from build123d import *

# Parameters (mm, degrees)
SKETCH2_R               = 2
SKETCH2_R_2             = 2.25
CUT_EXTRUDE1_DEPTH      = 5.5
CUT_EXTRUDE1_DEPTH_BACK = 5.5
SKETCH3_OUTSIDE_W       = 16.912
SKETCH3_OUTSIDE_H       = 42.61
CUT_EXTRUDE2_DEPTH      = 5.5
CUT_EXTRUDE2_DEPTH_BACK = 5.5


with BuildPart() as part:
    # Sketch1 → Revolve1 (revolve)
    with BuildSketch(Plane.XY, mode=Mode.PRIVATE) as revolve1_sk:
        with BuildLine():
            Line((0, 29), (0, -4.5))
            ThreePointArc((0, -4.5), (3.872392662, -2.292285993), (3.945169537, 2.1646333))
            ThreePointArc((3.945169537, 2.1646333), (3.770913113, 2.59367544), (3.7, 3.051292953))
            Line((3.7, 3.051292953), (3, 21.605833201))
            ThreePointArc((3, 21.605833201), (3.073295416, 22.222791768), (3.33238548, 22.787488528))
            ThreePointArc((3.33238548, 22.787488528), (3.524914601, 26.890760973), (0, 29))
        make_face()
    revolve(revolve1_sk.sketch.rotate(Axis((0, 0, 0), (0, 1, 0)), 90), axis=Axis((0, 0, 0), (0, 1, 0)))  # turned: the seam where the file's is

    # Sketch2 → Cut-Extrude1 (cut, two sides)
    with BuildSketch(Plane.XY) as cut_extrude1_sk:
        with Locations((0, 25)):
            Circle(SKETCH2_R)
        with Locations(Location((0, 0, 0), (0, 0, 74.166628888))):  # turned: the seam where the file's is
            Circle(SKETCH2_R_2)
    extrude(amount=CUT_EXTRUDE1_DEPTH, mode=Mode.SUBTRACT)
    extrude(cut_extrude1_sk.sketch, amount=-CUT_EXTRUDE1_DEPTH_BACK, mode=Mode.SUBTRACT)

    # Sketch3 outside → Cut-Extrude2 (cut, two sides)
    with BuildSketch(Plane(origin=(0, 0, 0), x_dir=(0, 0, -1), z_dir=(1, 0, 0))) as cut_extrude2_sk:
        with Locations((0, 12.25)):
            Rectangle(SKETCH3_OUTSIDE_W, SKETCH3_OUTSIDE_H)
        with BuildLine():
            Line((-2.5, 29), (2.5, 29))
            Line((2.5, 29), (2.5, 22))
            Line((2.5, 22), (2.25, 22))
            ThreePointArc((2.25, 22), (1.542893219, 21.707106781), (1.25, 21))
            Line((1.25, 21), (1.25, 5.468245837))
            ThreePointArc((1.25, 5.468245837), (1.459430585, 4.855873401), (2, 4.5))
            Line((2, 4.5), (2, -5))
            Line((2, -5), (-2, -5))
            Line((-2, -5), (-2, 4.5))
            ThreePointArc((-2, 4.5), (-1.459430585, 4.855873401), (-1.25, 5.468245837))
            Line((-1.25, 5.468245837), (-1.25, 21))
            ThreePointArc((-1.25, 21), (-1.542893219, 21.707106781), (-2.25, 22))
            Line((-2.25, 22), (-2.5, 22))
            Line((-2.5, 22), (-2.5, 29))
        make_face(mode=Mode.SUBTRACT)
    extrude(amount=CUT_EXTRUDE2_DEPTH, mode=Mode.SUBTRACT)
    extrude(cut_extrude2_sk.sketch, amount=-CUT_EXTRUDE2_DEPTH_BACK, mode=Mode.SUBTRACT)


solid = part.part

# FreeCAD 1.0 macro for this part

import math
import FreeCAD as App
import Part
import Sketcher

V = App.Vector
Q = App.Units.Quantity


def add_polygon(sketch, points):
    """Adds a closed chain of lines whose ends are joined by coincident constraints."""
    first, n = sketch.GeometryCount, len(points)
    for a, b in zip(points, points[1:] + points[:1]):
        sketch.addGeometry(Part.LineSegment(App.Vector(*a, 0), App.Vector(*b, 0)), False)
    for i in range(n):
        sketch.addConstraint(Sketcher.Constraint("Coincident", first + i, 2, first + (i + 1) % n, 1))

doc = App.newDocument("Part")
body = doc.addObject("PartDesign::Body", "Body")

# Sketch on XY plane
sketch1 = body.newObject("Sketcher::SketchObject", "Sketch")
sketch1.AttachmentSupport = (doc.getObject("XY_Plane"), [""])
sketch1.MapMode = "FlatFace"
sketch1.addGeometry(Part.LineSegment(V(0, 29, 0), V(0, -4.5, 0)), False)
sketch1.addGeometry(Part.ArcOfCircle(Part.Circle(V(0, 0, 0), V(0, 0, 1), 4.5), math.radians(-90), math.radians(29)), False)
sketch1.addGeometry(Part.ArcOfCircle(Part.Circle(V(5.7, 3.1, 0), V(0, 0, 1), 2), math.radians(-178), math.radians(-151)), False)
sketch1.addGeometry(Part.LineSegment(V(3.7, 3.1, 0), V(3, 21.6, 0)), False)
sketch1.addGeometry(Part.ArcOfCircle(Part.Circle(V(5, 21.7, 0), V(0, 0, 1), 2), math.radians(146), math.radians(182)), False)
sketch1.addGeometry(Part.ArcOfCircle(Part.Circle(V(0, 25, 0), V(0, 0, 1), 4), math.radians(-34), math.radians(90)), False)
sketch1.addConstraint(Sketcher.Constraint("Coincident", 0, 2, 1, 1))
sketch1.addConstraint(Sketcher.Constraint("Tangent", 1, 2, 2, 2))
sketch1.addConstraint(Sketcher.Constraint("Tangent", 2, 1, 3, 1))
sketch1.addConstraint(Sketcher.Constraint("Tangent", 3, 2, 4, 2))
sketch1.addConstraint(Sketcher.Constraint("Tangent", 4, 1, 5, 1))
sketch1.addConstraint(Sketcher.Constraint("Coincident", 5, 2, 0, 1))
sketch1.addConstraint(Sketcher.Constraint("Vertical", 0))
sketch1.addConstraint(Sketcher.Constraint("Coincident", 1, 3, -1, 1))
sketch1.addConstraint(Sketcher.Constraint("Equal", 2, 4))
sketch1.addConstraint(Sketcher.Constraint("PointOnObject", 5, 3, -2))
sketch1.addConstraint(Sketcher.Constraint("PointOnObject", 0, 2, -2))
sketch1.addConstraint(Sketcher.Constraint("Radius", 2, Q("2 mm")))
sketch1.addConstraint(Sketcher.Constraint("Radius", 5, Q("4 mm")))
sketch1.addConstraint(Sketcher.Constraint("Radius", 1, Q("4.5 mm")))
sketch1.addConstraint(Sketcher.Constraint("DistanceY", 0, 2, 0, 1, Q("33.5 mm")))
sketch1.addConstraint(Sketcher.Constraint("DistanceX", -1, 1, 3, 2, Q("3 mm")))
sketch1.addConstraint(Sketcher.Constraint("DistanceX", -1, 1, 2, 1, Q("3.7 mm")))
revolution = body.newObject("PartDesign::Revolution", "Revolution")
revolution.Profile = sketch1
revolution.ReferenceAxis = (sketch1, ["V_Axis"])
revolution.Angle = 360

# Sketch on XY plane
sketch2 = body.newObject("Sketcher::SketchObject", "Sketch001")
sketch2.AttachmentSupport = (doc.getObject("XY_Plane"), [""])
sketch2.MapMode = "FlatFace"
sketch2.addGeometry(Part.Circle(V(0, 25, 0), V(0, 0, 1), 2), False)
sketch2.addGeometry(Part.Circle(V(0, 0, 0), V(0, 0, 1), 2.2), False)
sketch2.addConstraint(Sketcher.Constraint("Coincident", 1, 3, -1, 1))
sketch2.addConstraint(Sketcher.Constraint("PointOnObject", 0, 3, -2))
sketch2.addConstraint(Sketcher.Constraint("Diameter", 0, Q("4 mm")))
sketch2.addConstraint(Sketcher.Constraint("Diameter", 1, Q("4.5 mm")))
sketch2.addConstraint(Sketcher.Constraint("DistanceY", -1, 1, 0, 3, Q("25 mm")))
pocket1 = body.newObject("PartDesign::Pocket", "Pocket")
pocket1.Profile = sketch2
pocket1.Type = "ThroughAll"
pocket1.Midplane = True

# Sketch on YZ plane
sketch3 = body.newObject("Sketcher::SketchObject", "Sketch002")
sketch3.AttachmentSupport = (doc.getObject("YZ_Plane"), [""])
sketch3.MapMode = "FlatFace"
add_polygon(sketch3, [(33.55, 8.46), (-9.05, 8.46), (-9.05, -8.46), (33.55, -8.46)])  # lines 0-3
sketch3.addGeometry(Part.LineSegment(V(22, 2.5, 0), V(29, 2.5, 0)), False)  # 4
sketch3.addGeometry(Part.LineSegment(V(29, 2.5, 0), V(29, -2.5, 0)), False)  # 5
sketch3.addGeometry(Part.LineSegment(V(29, -2.5, 0), V(22, -2.5, 0)), False)  # 6
sketch3.addGeometry(Part.LineSegment(V(22, -2.5, 0), V(22, -2.25, 0)), False)  # 7
sketch3.addGeometry(Part.ArcOfCircle(Part.Circle(V(21, -2.25, 0), V(0, 0, 1), 1), math.radians(0), math.radians(90)), False)  # 8
sketch3.addGeometry(Part.LineSegment(V(21, -1.25, 0), V(5.47, -1.25, 0)), False)  # 9
sketch3.addGeometry(Part.ArcOfCircle(Part.Circle(V(5.47, -2.25, 0), V(0, 0, 1), 1), math.radians(90), math.radians(166)), False)  # 10
sketch3.addGeometry(Part.LineSegment(V(4.5, -2, 0), V(-5, -2, 0)), False)  # 11
sketch3.addGeometry(Part.LineSegment(V(-5, -2, 0), V(-5, 2, 0)), False)  # 12
sketch3.addGeometry(Part.LineSegment(V(-5, 2, 0), V(4.5, 2, 0)), False)  # 13
sketch3.addGeometry(Part.ArcOfCircle(Part.Circle(V(5.47, 2.25, 0), V(0, 0, 1), 1), math.radians(-166), math.radians(-90)), False)  # 14
sketch3.addGeometry(Part.LineSegment(V(5.47, 1.25, 0), V(21, 1.25, 0)), False)  # 15
sketch3.addGeometry(Part.ArcOfCircle(Part.Circle(V(21, 2.25, 0), V(0, 0, 1), 1), math.radians(-90), math.radians(0)), False)  # 16
sketch3.addGeometry(Part.LineSegment(V(22, 2.25, 0), V(22, 2.5, 0)), False)  # 17
sketch3.addConstraint(Sketcher.Constraint("Coincident", 4, 2, 5, 1))
sketch3.addConstraint(Sketcher.Constraint("Coincident", 5, 2, 6, 1))
sketch3.addConstraint(Sketcher.Constraint("Coincident", 6, 2, 7, 1))
sketch3.addConstraint(Sketcher.Constraint("Tangent", 7, 2, 8, 1))
sketch3.addConstraint(Sketcher.Constraint("Tangent", 8, 2, 9, 1))
sketch3.addConstraint(Sketcher.Constraint("Tangent", 9, 2, 10, 1))
sketch3.addConstraint(Sketcher.Constraint("Coincident", 10, 2, 11, 1))
sketch3.addConstraint(Sketcher.Constraint("Coincident", 11, 2, 12, 1))
sketch3.addConstraint(Sketcher.Constraint("Coincident", 12, 2, 13, 1))
sketch3.addConstraint(Sketcher.Constraint("Coincident", 13, 2, 14, 1))
sketch3.addConstraint(Sketcher.Constraint("Tangent", 14, 2, 15, 1))
sketch3.addConstraint(Sketcher.Constraint("Tangent", 15, 2, 16, 1))
sketch3.addConstraint(Sketcher.Constraint("Tangent", 16, 2, 17, 1))
sketch3.addConstraint(Sketcher.Constraint("Coincident", 17, 2, 4, 1))
sketch3.addConstraint(Sketcher.Constraint("Horizontal", 0))
sketch3.addConstraint(Sketcher.Constraint("Vertical", 1))
sketch3.addConstraint(Sketcher.Constraint("Horizontal", 2))
sketch3.addConstraint(Sketcher.Constraint("Vertical", 3))
sketch3.addConstraint(Sketcher.Constraint("Horizontal", 4))
sketch3.addConstraint(Sketcher.Constraint("Vertical", 5))
sketch3.addConstraint(Sketcher.Constraint("Horizontal", 6))
sketch3.addConstraint(Sketcher.Constraint("Vertical", 7))
sketch3.addConstraint(Sketcher.Constraint("Horizontal", 9))
sketch3.addConstraint(Sketcher.Constraint("Horizontal", 11))
sketch3.addConstraint(Sketcher.Constraint("Vertical", 12))
sketch3.addConstraint(Sketcher.Constraint("Horizontal", 13))
sketch3.addConstraint(Sketcher.Constraint("Horizontal", 15))
sketch3.addConstraint(Sketcher.Constraint("Vertical", 17))
sketch3.addConstraint(Sketcher.Constraint("Equal", 8, 10))
sketch3.addConstraint(Sketcher.Constraint("Equal", 10, 14))
sketch3.addConstraint(Sketcher.Constraint("Equal", 14, 16))
sketch3.addConstraint(Sketcher.Constraint("Symmetric", 10, 3, 14, 3, -1))
sketch3.addConstraint(Sketcher.Constraint("Symmetric", 6, 2, 17, 2, -1))
sketch3.addConstraint(Sketcher.Constraint("Vertical", 10, 2, 13, 2))
sketch3.addConstraint(Sketcher.Constraint("Radius", 8, Q("1 mm")))
sketch3.addConstraint(Sketcher.Constraint("DistanceX", 4, 1, 4, 2, Q("7 mm")))
sketch3.addConstraint(Sketcher.Constraint("DistanceY", 5, 2, 5, 1, Q("5 mm")))
sketch3.addConstraint(Sketcher.Constraint("DistanceY", 12, 1, 12, 2, Q("4 mm")))
sketch3.addConstraint(Sketcher.Constraint("DistanceX", 11, 2, 11, 1, Q("9.5 mm")))
sketch3.addConstraint(Sketcher.Constraint("DistanceX", -1, 1, 8, 3, Q("21 mm")))
sketch3.addConstraint(Sketcher.Constraint("DistanceX", 11, 2, -1, 1, Q("5 mm")))
sketch3.addConstraint(Sketcher.Constraint("DistanceX", 0, 2, 0, 1, Q("42.61 mm")))
sketch3.addConstraint(Sketcher.Constraint("DistanceY", 7, 1, 7, 2, Q("0.25 mm")))
sketch3.addConstraint(Sketcher.Constraint("DistanceY", 1, 2, 1, 1, Q("16.912 mm")))
sketch3.addConstraint(Sketcher.Constraint("DistanceX", 0, 2, -1, 1, Q("9.055 mm")))
sketch3.addConstraint(Sketcher.Constraint("DistanceY", -1, 1, 0, 2, Q("8.456 mm")))
pocket2 = body.newObject("PartDesign::Pocket", "Pocket001")
pocket2.Profile = sketch3
pocket2.Type = "ThroughAll"
pocket2.Midplane = True

doc.recompute()
